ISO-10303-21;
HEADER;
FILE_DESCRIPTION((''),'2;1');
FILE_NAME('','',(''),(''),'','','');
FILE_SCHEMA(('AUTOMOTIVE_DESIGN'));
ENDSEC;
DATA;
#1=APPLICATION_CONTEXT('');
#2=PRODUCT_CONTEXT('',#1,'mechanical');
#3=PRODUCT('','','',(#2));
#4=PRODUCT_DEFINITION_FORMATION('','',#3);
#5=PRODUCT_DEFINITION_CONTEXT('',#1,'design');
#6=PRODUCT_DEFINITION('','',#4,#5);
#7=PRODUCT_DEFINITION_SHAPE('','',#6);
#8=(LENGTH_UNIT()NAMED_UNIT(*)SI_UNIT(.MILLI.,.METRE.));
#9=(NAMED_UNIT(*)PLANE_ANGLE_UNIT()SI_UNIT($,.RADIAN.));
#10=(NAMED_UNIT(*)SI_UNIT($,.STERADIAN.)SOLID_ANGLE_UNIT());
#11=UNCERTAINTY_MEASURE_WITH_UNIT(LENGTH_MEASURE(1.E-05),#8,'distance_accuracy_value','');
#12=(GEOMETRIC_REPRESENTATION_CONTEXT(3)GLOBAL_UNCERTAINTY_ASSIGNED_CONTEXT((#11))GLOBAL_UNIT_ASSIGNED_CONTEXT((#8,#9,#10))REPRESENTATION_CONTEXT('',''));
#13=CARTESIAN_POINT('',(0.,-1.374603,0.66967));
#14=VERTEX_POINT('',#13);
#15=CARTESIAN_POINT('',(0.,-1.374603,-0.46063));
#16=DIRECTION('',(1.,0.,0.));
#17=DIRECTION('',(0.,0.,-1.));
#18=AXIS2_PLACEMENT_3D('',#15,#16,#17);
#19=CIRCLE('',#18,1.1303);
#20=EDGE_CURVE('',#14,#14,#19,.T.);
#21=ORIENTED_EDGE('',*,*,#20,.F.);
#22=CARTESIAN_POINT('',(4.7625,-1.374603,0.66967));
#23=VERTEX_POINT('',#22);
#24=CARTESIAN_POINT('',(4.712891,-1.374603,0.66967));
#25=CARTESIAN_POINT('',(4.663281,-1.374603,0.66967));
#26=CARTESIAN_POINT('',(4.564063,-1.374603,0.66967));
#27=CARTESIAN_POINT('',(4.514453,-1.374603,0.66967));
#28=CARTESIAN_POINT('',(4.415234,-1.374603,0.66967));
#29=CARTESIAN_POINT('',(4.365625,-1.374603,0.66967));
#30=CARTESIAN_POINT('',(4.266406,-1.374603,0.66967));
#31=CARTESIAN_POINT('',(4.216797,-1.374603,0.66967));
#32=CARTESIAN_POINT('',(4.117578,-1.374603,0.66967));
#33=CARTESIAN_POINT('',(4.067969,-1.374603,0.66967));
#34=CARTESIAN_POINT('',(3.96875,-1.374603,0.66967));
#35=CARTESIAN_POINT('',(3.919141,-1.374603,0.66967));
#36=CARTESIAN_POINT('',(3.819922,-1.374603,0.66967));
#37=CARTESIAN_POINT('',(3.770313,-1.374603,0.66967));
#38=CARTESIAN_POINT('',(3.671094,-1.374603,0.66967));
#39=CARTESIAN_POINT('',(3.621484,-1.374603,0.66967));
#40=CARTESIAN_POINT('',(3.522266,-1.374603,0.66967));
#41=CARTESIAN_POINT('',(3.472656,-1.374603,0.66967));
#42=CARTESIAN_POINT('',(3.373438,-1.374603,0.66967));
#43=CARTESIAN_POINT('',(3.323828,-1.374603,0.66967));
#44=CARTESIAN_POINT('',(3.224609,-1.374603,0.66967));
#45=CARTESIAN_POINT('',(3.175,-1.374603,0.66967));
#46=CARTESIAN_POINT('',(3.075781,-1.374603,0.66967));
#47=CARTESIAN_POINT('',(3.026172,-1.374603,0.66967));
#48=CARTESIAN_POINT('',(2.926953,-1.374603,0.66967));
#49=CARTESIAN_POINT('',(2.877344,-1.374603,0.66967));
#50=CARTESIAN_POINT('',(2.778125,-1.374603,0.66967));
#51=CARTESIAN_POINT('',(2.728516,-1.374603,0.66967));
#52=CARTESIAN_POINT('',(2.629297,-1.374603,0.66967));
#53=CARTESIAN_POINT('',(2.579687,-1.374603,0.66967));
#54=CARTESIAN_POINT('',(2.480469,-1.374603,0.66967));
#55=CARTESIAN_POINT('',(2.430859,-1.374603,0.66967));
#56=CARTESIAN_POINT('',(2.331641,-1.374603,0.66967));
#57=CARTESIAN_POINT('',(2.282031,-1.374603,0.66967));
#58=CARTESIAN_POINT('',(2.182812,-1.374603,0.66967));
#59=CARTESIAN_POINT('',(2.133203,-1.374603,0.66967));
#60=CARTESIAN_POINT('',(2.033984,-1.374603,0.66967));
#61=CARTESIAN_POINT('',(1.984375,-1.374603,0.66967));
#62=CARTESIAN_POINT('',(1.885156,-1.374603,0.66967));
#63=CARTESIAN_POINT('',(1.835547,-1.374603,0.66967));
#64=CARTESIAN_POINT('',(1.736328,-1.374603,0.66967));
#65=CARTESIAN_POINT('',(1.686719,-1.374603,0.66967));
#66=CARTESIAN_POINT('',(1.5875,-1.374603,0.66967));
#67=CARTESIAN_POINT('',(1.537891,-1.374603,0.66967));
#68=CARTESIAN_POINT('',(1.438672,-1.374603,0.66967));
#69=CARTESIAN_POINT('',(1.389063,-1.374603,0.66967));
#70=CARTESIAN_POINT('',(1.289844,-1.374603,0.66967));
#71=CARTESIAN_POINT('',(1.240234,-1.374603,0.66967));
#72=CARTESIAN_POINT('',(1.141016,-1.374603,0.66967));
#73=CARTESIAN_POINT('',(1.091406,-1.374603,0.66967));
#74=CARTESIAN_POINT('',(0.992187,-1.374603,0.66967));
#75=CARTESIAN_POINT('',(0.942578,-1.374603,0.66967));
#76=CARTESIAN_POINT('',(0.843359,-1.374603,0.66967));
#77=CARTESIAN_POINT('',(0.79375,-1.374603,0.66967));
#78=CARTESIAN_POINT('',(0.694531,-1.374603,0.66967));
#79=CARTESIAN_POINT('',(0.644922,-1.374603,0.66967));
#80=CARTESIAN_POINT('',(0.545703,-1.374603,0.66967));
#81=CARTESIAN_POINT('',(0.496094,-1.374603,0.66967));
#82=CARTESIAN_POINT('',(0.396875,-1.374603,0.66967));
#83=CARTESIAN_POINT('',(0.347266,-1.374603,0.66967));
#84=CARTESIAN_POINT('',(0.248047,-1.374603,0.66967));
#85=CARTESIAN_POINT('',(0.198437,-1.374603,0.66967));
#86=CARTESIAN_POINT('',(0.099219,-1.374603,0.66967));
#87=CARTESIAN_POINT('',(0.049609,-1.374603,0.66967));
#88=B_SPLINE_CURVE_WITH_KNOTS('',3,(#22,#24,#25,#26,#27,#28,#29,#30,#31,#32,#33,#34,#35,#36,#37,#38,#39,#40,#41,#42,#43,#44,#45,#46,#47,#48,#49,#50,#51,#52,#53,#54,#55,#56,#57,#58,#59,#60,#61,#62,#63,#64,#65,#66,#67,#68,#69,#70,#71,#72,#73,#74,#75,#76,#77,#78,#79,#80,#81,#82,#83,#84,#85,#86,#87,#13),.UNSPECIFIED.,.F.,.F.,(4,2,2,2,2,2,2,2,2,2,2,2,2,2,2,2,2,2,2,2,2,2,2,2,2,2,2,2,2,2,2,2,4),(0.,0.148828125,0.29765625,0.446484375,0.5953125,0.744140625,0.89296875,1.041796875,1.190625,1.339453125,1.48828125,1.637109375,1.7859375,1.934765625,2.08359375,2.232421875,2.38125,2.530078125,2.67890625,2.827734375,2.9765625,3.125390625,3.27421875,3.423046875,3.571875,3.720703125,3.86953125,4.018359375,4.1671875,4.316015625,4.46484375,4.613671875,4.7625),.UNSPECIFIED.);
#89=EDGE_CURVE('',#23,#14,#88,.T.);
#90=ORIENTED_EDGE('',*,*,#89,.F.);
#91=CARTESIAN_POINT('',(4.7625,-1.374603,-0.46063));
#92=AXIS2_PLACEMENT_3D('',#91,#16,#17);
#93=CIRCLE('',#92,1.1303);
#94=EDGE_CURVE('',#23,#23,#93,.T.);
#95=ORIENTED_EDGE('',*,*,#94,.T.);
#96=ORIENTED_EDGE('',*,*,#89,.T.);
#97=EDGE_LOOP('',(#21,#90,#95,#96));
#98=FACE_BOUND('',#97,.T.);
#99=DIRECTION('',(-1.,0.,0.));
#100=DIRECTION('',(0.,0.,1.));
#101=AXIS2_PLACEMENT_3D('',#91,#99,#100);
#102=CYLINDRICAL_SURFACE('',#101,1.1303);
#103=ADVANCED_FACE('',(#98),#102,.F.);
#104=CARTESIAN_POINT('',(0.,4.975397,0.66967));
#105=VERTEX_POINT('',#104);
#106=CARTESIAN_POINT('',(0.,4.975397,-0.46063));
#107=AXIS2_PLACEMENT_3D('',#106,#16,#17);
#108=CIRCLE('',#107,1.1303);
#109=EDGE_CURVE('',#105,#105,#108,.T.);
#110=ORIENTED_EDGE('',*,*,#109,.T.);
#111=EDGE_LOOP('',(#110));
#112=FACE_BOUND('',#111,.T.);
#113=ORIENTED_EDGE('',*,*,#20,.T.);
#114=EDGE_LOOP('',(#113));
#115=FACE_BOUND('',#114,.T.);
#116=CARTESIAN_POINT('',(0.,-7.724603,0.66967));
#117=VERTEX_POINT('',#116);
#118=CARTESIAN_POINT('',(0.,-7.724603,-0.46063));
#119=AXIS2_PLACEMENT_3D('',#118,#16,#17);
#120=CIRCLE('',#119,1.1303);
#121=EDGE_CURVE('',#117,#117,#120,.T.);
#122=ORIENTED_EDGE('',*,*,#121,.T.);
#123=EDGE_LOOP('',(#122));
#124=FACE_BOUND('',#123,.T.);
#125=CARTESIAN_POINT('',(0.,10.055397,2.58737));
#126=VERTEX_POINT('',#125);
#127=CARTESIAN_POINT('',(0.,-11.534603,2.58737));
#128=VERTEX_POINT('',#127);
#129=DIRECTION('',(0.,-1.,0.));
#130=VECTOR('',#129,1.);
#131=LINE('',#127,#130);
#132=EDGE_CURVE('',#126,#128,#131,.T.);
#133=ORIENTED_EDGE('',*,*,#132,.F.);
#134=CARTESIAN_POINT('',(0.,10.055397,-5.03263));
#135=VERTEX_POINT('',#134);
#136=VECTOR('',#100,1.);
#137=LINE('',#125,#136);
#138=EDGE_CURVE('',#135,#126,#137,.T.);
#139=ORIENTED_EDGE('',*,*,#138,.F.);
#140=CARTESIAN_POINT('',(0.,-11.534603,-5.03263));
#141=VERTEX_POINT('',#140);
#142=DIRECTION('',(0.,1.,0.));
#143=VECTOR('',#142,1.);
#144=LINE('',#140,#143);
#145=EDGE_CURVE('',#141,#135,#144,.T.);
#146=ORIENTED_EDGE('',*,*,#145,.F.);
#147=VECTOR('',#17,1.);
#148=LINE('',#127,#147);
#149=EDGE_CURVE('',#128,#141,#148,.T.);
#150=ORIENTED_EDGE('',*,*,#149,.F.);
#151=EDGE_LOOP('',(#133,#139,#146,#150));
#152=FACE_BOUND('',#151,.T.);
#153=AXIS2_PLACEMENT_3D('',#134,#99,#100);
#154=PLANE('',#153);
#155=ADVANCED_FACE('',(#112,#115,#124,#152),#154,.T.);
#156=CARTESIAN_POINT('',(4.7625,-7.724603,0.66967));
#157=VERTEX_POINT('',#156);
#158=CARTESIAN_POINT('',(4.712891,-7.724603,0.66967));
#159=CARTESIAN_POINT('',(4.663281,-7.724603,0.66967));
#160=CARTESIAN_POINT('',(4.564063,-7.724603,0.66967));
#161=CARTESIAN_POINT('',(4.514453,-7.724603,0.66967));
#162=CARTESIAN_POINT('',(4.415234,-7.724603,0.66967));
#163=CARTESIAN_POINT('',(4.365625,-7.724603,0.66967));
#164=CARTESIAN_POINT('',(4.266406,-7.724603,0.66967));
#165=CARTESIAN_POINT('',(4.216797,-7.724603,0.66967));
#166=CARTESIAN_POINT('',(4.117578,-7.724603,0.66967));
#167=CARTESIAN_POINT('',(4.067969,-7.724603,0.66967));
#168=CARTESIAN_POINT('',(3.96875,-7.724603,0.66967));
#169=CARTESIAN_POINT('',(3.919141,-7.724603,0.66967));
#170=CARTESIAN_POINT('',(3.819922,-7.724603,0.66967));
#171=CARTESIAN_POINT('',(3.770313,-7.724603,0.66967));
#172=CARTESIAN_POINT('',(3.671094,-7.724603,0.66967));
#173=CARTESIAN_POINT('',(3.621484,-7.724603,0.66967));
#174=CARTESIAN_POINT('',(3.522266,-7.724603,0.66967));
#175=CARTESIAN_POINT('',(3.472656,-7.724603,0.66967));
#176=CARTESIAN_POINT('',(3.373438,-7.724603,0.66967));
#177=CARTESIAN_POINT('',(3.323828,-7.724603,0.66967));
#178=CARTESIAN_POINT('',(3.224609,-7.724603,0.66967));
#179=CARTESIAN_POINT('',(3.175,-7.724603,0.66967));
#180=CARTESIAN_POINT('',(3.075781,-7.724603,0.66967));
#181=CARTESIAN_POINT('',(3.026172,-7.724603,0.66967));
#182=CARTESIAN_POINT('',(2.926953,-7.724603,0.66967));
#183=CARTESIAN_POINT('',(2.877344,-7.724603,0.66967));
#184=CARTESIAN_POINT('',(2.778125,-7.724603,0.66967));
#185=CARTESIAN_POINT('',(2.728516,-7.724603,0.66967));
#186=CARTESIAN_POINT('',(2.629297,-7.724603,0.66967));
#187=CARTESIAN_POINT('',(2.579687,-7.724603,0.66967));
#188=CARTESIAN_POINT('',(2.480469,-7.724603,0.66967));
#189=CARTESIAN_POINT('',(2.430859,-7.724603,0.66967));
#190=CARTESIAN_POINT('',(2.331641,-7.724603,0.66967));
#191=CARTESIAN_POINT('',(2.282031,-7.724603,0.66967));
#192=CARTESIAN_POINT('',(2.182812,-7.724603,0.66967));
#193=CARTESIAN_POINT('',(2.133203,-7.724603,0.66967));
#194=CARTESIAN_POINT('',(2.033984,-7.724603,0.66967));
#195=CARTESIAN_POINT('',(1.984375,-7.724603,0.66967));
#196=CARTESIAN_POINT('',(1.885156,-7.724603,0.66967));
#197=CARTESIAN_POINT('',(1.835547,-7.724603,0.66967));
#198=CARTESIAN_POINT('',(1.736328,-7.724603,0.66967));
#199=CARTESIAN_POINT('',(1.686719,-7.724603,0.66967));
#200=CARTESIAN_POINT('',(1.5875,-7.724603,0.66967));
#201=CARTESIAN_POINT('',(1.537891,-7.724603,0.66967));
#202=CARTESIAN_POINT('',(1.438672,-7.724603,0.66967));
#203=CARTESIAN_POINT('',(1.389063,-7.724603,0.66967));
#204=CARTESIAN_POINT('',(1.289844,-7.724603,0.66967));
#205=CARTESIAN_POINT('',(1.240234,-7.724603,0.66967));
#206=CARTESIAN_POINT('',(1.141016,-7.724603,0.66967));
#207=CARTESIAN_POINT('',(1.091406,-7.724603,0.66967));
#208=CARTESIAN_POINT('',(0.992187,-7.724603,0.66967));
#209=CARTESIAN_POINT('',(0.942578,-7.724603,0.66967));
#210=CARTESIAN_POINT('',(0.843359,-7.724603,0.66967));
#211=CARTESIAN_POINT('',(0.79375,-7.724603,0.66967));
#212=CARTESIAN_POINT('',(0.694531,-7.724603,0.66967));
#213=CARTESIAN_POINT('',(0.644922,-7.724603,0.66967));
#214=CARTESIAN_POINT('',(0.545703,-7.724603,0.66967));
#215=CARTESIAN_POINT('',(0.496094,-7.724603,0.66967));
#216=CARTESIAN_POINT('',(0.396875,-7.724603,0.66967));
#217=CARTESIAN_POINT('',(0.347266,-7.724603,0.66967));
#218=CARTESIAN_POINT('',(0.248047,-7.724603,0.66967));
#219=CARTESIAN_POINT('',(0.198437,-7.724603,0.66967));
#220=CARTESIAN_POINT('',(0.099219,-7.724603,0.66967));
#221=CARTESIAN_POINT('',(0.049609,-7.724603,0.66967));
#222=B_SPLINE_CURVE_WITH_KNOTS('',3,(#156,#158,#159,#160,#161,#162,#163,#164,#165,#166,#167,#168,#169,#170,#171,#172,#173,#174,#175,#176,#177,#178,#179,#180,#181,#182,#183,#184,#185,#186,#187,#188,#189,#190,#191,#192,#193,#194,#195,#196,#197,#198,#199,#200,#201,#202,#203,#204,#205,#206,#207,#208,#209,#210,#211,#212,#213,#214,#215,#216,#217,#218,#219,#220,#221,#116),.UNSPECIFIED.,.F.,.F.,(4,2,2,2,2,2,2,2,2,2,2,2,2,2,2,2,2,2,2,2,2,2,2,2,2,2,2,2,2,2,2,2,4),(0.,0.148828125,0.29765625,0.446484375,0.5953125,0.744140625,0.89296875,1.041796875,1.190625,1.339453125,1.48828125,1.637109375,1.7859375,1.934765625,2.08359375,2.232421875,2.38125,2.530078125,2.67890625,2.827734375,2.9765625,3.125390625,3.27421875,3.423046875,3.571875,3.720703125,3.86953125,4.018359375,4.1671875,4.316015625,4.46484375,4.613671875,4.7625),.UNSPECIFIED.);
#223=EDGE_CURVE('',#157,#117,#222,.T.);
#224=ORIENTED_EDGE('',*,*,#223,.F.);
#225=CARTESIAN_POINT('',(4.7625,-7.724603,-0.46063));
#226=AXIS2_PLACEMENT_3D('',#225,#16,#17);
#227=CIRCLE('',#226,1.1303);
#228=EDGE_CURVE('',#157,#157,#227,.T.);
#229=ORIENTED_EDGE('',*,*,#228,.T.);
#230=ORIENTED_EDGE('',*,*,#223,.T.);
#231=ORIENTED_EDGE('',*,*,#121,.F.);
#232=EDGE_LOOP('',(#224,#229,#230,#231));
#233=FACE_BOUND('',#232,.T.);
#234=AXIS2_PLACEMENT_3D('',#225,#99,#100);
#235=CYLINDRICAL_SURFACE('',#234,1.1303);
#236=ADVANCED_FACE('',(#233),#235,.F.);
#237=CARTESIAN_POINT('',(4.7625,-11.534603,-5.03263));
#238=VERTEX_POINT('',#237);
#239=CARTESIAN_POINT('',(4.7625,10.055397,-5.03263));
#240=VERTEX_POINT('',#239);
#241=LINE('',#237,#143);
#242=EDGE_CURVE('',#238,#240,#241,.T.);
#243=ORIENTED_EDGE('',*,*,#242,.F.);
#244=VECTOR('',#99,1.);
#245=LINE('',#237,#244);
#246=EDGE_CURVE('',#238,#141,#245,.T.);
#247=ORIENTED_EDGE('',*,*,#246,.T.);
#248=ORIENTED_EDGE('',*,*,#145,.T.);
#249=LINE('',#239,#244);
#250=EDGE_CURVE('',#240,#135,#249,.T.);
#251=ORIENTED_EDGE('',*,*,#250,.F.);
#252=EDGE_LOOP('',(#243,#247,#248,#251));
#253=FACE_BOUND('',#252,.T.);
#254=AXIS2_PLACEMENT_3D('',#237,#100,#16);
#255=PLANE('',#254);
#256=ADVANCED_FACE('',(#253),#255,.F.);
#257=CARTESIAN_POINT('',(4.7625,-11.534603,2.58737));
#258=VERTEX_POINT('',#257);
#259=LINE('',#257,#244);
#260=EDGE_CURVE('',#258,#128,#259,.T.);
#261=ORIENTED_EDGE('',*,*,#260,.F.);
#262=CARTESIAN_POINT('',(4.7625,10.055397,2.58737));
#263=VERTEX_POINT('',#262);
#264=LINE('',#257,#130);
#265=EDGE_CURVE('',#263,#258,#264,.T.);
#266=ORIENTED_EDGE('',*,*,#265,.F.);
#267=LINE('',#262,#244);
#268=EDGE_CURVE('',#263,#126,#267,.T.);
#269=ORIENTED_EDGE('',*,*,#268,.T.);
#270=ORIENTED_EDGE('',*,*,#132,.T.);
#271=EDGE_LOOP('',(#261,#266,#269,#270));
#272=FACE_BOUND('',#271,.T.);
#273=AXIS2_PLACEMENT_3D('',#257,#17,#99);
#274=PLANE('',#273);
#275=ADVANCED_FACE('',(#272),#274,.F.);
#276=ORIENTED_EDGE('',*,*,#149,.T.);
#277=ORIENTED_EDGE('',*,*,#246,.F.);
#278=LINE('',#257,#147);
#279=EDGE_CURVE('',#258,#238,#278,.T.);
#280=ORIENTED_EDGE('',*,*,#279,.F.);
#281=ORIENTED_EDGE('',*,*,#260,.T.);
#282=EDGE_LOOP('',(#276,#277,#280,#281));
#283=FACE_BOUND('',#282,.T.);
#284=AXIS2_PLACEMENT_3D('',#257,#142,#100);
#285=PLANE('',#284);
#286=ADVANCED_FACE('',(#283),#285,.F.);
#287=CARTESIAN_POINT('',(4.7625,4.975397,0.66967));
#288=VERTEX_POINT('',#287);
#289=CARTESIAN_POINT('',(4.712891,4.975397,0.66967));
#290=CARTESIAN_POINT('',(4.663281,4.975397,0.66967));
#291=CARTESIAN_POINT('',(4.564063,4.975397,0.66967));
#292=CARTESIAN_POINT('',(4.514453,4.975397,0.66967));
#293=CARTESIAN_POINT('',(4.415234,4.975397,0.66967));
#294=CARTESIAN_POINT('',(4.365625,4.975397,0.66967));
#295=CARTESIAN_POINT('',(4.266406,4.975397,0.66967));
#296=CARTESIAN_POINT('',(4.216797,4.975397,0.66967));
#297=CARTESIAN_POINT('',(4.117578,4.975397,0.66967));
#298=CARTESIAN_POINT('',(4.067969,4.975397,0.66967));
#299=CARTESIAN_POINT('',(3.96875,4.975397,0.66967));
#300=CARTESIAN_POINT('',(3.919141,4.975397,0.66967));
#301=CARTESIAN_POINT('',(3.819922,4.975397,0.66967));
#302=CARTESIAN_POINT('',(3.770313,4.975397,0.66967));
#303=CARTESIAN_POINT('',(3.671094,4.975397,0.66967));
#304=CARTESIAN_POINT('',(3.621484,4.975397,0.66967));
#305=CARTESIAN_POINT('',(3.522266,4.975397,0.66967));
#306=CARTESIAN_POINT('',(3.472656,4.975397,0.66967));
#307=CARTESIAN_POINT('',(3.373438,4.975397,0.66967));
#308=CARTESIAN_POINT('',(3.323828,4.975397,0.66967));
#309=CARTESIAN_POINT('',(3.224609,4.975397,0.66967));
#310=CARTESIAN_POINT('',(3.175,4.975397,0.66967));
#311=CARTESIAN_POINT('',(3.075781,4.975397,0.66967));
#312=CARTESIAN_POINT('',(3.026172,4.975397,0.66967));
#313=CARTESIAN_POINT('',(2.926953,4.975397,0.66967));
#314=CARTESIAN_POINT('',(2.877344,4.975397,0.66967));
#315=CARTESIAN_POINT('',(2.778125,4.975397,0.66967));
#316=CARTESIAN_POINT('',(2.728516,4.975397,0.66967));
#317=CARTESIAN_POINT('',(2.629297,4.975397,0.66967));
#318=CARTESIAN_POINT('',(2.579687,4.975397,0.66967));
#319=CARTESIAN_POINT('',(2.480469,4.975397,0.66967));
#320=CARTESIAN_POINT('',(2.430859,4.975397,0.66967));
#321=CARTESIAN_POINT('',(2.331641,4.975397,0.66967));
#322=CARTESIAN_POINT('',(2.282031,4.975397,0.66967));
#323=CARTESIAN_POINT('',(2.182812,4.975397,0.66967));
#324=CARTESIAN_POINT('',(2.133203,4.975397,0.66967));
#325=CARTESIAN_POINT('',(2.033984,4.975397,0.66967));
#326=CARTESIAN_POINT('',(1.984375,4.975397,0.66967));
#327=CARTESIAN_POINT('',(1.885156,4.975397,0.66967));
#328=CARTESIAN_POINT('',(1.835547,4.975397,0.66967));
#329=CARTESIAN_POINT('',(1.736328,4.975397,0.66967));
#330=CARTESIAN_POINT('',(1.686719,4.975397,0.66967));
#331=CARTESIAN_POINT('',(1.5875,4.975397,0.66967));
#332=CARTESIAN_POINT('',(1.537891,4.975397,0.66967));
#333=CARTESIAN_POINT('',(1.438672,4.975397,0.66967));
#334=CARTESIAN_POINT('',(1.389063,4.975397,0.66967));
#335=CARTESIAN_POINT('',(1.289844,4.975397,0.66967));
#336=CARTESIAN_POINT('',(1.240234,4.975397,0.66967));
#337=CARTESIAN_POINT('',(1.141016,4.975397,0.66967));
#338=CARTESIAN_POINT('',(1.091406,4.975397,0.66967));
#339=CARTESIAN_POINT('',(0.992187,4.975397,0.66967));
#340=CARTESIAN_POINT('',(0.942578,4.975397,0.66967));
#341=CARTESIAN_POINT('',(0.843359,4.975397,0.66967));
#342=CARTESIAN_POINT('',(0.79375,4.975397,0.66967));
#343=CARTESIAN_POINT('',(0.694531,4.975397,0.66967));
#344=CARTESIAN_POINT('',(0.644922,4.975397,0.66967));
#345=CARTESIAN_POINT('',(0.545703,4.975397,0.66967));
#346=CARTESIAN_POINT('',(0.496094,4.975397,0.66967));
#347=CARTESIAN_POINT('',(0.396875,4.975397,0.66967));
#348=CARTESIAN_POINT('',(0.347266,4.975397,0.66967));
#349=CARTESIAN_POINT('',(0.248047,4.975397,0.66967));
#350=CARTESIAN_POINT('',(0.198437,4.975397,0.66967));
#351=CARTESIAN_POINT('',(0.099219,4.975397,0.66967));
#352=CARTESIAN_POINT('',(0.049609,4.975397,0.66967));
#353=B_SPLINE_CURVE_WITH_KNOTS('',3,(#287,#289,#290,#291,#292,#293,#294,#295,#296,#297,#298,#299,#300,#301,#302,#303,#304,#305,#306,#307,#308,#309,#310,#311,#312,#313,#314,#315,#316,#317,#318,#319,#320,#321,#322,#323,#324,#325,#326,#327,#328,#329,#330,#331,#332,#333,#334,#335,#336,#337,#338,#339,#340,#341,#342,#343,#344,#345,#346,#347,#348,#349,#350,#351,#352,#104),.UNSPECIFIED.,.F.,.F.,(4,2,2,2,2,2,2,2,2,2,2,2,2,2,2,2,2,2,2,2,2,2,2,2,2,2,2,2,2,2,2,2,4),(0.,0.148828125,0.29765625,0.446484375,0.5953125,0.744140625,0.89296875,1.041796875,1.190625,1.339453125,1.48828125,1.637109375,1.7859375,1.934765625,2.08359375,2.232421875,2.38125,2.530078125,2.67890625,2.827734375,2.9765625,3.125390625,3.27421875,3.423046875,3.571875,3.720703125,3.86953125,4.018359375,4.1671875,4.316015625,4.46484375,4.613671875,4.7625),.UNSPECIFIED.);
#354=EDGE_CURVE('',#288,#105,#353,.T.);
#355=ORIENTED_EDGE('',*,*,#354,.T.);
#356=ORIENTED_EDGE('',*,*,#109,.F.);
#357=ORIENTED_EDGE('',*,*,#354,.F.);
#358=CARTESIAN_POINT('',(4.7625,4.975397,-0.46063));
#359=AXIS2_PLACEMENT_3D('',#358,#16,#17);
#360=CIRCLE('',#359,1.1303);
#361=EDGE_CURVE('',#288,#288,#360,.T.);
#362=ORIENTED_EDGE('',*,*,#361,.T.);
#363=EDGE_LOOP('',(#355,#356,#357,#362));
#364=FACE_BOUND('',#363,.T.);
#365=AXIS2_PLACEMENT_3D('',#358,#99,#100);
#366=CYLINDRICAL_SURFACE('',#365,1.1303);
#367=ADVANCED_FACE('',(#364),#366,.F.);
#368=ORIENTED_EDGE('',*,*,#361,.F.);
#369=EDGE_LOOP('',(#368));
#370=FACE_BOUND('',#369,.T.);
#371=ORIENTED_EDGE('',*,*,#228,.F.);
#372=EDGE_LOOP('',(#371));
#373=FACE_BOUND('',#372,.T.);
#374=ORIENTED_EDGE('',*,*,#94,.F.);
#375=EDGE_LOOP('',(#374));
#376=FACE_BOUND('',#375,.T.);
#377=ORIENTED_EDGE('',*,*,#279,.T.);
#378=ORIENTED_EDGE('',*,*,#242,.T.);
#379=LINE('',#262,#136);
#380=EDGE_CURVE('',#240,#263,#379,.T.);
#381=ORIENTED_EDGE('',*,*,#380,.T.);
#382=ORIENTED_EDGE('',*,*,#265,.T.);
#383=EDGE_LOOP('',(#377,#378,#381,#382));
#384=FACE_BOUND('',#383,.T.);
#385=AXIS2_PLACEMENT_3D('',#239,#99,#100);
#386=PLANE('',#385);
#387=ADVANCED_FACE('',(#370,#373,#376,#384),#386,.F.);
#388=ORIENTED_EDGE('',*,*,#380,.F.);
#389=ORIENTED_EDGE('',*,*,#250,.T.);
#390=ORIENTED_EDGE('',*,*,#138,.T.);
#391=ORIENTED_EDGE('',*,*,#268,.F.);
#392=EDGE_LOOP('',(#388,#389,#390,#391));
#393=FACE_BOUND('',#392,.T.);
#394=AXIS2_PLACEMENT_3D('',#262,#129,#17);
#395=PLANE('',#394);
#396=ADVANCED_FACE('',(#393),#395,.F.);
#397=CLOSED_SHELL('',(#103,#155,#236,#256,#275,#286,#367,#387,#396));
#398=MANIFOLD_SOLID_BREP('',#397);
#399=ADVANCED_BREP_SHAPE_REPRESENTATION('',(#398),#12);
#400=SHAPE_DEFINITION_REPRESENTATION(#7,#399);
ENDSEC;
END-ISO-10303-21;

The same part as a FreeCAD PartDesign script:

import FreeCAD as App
import Part
import Sketcher
Q = App.Units.Quantity


def add_polygon(sketch, points):
    """Adds a closed chain of lines whose ends are joined by coincident constraints."""
    first, n = sketch.GeometryCount, len(points)
    for a, b in zip(points, points[1:] + points[:1]):
        sketch.addGeometry(Part.LineSegment(App.Vector(*a, 0), App.Vector(*b, 0)), False)
    for i in range(n):
        sketch.addConstraint(Sketcher.Constraint("Coincident", first + i, 2, first + (i + 1) % n, 1))

doc = App.newDocument("Part")
body = doc.addObject("PartDesign::Body", "Body")

sketch1 = doc.addObject("Sketcher::SketchObject", "Sketch")
body.addObject(sketch1)
sketch1.AttachmentSupport = (doc.YZ_Plane, [""])
sketch1.MapMode = "FlatFace"
add_polygon(sketch1, [(10.1, 2.6), (-11.5, 2.6), (-11.5, -5), (10.1, -5)])
sketch1.addGeometry(Part.Circle(App.Vector(-7.7, -0.5, 0), App.Vector(0, 0, 1), 1.1), False)
sketch1.addGeometry(Part.Circle(App.Vector(-1.4, -0.5, 0), App.Vector(0, 0, 1), 1.1), False)
sketch1.addGeometry(Part.Circle(App.Vector(5, -0.5, 0), App.Vector(0, 0, 1), 1.1), False)
sketch1.addConstraint(Sketcher.Constraint("Horizontal", 0))
sketch1.addConstraint(Sketcher.Constraint("Vertical", 1))
sketch1.addConstraint(Sketcher.Constraint("Horizontal", 2))
sketch1.addConstraint(Sketcher.Constraint("Vertical", 3))
sketch1.addConstraint(Sketcher.Constraint("Equal", 4, 5))
sketch1.addConstraint(Sketcher.Constraint("Equal", 5, 6))
sketch1.addConstraint(Sketcher.Constraint("Horizontal", 4, 3, 5, 3))
sketch1.addConstraint(Sketcher.Constraint("Horizontal", 5, 3, 6, 3))
sketch1.addConstraint(Sketcher.Constraint("Diameter", 4, Q("0.089 in")))
sketch1.addConstraint(Sketcher.Constraint("DistanceY", 1, 2, 1, 1, Q("0.3 in")))
sketch1.addConstraint(Sketcher.Constraint("DistanceX", 0, 2, 0, 1, Q("0.85 in")))
sketch1.addConstraint(Sketcher.Constraint("DistanceX", 4, 3, 6, 3, Q("0.5 in")))
sketch1.addConstraint(Sketcher.Constraint("DistanceX", 0, 2, 5, 3, Q("0.4 in")))
sketch1.addConstraint(Sketcher.Constraint("DistanceX", 6, 3, 2, 2, Q("0.2 in")))
sketch1.addConstraint(Sketcher.Constraint("DistanceY", 4, 3, 0, 2, Q("0.12 in")))
sketch1.addConstraint(Sketcher.Constraint("DistanceY", 4, 3, -1, 1, Q("0.46063 mm")))
sketch1.addConstraint(Sketcher.Constraint("DistanceX", 4, 3, -1, 1, Q("7.724603 mm")))
pad1 = doc.addObject("PartDesign::Pad", "Pad")
body.addObject(pad1)
pad1.Profile = sketch1
pad1.Length = Q("0.1875 in")

doc.recompute()
